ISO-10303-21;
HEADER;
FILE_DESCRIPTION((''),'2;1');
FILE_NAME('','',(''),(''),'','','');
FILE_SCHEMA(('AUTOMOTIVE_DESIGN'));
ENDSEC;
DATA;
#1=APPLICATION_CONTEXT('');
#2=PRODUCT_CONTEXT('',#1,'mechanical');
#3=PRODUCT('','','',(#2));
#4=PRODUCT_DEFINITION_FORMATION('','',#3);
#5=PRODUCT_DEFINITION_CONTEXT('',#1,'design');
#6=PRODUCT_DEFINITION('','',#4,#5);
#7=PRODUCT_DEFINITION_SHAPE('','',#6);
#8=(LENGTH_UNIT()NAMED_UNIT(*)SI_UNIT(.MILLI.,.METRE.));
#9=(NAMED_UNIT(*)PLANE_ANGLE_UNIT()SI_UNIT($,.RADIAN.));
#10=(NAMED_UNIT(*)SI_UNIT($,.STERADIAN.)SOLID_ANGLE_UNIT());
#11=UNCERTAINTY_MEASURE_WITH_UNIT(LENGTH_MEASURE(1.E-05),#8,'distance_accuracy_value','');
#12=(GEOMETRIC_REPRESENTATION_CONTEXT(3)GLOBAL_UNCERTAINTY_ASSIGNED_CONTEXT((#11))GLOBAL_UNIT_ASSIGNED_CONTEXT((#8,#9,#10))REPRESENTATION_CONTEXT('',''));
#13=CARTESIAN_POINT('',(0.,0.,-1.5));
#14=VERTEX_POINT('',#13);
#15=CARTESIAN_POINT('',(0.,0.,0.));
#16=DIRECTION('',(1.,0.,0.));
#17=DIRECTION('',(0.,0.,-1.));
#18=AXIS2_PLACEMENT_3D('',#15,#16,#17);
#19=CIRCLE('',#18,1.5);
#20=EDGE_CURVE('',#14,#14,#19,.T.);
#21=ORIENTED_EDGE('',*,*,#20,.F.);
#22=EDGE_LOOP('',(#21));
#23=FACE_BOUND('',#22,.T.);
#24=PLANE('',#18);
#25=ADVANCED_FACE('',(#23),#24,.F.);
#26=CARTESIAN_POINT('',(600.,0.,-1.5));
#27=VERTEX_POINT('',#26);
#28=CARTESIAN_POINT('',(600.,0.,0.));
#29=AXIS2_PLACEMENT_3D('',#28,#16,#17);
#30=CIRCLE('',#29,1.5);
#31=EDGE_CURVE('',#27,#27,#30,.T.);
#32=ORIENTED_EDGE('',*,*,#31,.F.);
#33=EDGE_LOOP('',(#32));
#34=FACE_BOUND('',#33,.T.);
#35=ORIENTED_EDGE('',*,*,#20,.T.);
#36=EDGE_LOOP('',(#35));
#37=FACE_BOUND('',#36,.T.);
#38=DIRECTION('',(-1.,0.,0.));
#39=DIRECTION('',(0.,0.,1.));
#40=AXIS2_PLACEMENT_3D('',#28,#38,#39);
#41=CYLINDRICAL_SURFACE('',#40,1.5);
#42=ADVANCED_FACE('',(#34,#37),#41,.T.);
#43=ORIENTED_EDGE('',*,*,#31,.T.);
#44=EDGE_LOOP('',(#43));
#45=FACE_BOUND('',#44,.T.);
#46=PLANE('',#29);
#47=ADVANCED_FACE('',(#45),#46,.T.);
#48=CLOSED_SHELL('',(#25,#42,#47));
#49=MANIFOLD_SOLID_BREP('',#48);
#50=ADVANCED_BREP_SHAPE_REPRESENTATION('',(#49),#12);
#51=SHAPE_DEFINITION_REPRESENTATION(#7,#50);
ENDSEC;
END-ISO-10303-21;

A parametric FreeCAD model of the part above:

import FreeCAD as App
import Part
import Sketcher

doc = App.newDocument("Part")
body = doc.addObject("PartDesign::Body", "Body")

# Sketch on YZ plane
sketch1 = body.newObject("Sketcher::SketchObject", "Sketch")
sketch1.AttachmentSupport = (doc.getObject("YZ_Plane"), [""])
sketch1.MapMode = "FlatFace"
sketch1.addGeometry(Part.Circle(App.Vector(0, 0, 0), App.Vector(0, 0, 1), 1.5), False)
sketch1.addConstraint([
    Sketcher.Constraint("Coincident", 0, 3, -1, 1),
    Sketcher.Constraint("Diameter", 0, 3.0),
])
pad1 = body.newObject("PartDesign::Pad", "Pad")
pad1.Profile = sketch1
pad1.Length = 600

doc.recompute()
